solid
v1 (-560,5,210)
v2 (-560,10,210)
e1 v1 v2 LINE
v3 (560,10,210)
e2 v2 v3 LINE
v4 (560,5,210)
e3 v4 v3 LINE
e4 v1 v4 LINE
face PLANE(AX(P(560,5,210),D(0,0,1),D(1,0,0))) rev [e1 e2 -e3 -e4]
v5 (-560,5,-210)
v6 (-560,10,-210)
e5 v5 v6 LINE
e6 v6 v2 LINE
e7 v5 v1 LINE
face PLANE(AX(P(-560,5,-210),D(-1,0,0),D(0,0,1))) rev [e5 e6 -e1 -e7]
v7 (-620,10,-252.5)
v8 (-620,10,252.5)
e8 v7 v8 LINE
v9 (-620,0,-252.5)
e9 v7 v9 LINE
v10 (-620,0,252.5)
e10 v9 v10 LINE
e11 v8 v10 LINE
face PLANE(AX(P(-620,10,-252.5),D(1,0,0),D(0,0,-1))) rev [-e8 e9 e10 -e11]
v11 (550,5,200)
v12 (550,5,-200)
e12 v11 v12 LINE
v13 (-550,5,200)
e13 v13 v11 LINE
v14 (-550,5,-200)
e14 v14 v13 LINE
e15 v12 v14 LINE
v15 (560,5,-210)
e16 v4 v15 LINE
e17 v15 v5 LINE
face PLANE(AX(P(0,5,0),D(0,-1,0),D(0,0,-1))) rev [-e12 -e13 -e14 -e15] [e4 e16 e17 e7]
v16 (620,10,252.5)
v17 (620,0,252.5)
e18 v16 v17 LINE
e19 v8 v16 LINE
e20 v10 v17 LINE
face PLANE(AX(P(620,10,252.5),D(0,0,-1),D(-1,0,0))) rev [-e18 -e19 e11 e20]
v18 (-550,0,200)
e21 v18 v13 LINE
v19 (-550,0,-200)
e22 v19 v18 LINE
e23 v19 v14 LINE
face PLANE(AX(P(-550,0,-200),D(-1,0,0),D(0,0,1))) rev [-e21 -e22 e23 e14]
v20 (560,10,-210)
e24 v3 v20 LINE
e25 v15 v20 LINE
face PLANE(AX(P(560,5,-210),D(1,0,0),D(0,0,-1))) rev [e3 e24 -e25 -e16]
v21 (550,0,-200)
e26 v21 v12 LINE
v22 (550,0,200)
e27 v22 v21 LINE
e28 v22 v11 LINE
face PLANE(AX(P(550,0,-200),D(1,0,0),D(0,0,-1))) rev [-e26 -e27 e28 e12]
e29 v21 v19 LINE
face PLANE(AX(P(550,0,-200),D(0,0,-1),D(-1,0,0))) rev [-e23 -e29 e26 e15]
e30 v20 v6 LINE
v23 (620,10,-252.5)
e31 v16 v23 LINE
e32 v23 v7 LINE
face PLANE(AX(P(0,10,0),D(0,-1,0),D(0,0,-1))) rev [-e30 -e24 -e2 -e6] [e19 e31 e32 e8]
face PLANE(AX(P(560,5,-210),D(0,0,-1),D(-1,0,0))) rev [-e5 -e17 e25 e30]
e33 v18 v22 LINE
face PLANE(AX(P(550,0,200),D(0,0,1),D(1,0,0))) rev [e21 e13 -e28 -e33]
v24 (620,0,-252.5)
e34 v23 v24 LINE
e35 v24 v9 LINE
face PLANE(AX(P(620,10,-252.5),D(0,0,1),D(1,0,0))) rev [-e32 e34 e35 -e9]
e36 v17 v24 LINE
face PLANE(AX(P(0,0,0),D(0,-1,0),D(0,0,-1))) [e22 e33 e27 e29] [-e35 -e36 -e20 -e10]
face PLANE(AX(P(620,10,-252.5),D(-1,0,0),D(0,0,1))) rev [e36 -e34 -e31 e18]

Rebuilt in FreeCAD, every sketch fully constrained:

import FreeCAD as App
import Part
import Sketcher
from FreeCAD import Vector
Q = App.Units.Quantity

doc = App.newDocument("Part")
body = doc.addObject("PartDesign::Body", "Body")

# Sketch on XZ plane
sketch1 = body.newObject("Sketcher::SketchObject", "Sketch")
sketch1.AttachmentSupport = (doc.getObject("XZ_Plane"), [""])
sketch1.MapMode = "FlatFace"
sketch1.addGeometry([
    Part.LineSegment(Vector(-620, -252.5, 0), Vector(-620, 252.5, 0)),
    Part.LineSegment(Vector(-620, 252.5, 0), Vector(620, 252.5, 0)),
    Part.LineSegment(Vector(620, 252.5, 0), Vector(620, -252.5, 0)),
    Part.LineSegment(Vector(620, -252.5, 0), Vector(-620, -252.5, 0)),
], False)
sketch1.addConstraint([
    Sketcher.Constraint("Coincident", 0, 2, 1, 1),
    Sketcher.Constraint("Coincident", 1, 2, 2, 1),
    Sketcher.Constraint("Coincident", 2, 2, 3, 1),
    Sketcher.Constraint("Coincident", 3, 2, 0, 1),
    Sketcher.Constraint("Vertical", 0),
    Sketcher.Constraint("Horizontal", 1),
    Sketcher.Constraint("Vertical", 2),
    Sketcher.Constraint("Horizontal", 3),
    Sketcher.Constraint("Symmetric", 0, 2, 2, 2, -1, 1),
    Sketcher.Constraint("DistanceX", 1, 1, 1, 2, Q("1240 mm")),
    Sketcher.Constraint("DistanceY", 0, 1, 0, 2, Q("505 mm")),
])
pad1 = body.newObject("PartDesign::Pad", "Pad")
pad1.Profile = sketch1
pad1.Length = 10
pad1.Reversed = True

# Sketch on XZ plane
sketch2 = body.newObject("Sketcher::SketchObject", "Sketch001")
sketch2.AttachmentSupport = (doc.getObject("XZ_Plane"), [""])
sketch2.MapMode = "FlatFace"
sketch2.AttachmentOffset = App.Placement(Vector(0, 0, -10), App.Rotation())
sketch2.addGeometry([
    Part.LineSegment(Vector(-550, -200, 0), Vector(-550, 200, 0)),
    Part.LineSegment(Vector(-550, 200, 0), Vector(550, 200, 0)),
    Part.LineSegment(Vector(550, 200, 0), Vector(550, -200, 0)),
    Part.LineSegment(Vector(550, -200, 0), Vector(-550, -200, 0)),
], False)
sketch2.addConstraint([
    Sketcher.Constraint("Coincident", 0, 2, 1, 1),
    Sketcher.Constraint("Coincident", 1, 2, 2, 1),
    Sketcher.Constraint("Coincident", 2, 2, 3, 1),
    Sketcher.Constraint("Coincident", 3, 2, 0, 1),
    Sketcher.Constraint("Vertical", 0),
    Sketcher.Constraint("Horizontal", 1),
    Sketcher.Constraint("Vertical", 2),
    Sketcher.Constraint("Horizontal", 3),
    Sketcher.Constraint("Symmetric", 0, 2, 2, 2, -1, 1),
    Sketcher.Constraint("DistanceX", 1, 1, 1, 2, Q("1100 mm")),
    Sketcher.Constraint("DistanceY", 0, 1, 0, 2, Q("400 mm")),
])
pocket1 = body.newObject("PartDesign::Pocket", "Pocket")
pocket1.Profile = sketch2
pocket1.Type = "ThroughAll"
pocket1.Reversed = True

# Sketch on XZ plane
sketch3 = body.newObject("Sketcher::SketchObject", "Sketch002")
sketch3.AttachmentSupport = (doc.getObject("XZ_Plane"), [""])
sketch3.MapMode = "FlatFace"
sketch3.AttachmentOffset = App.Placement(Vector(0, 0, -10), App.Rotation())
sketch3.addGeometry([
    Part.LineSegment(Vector(-560, -210, 0), Vector(-560, 210, 0)),
    Part.LineSegment(Vector(-560, 210, 0), Vector(560, 210, 0)),
    Part.LineSegment(Vector(560, 210, 0), Vector(560, -210, 0)),
    Part.LineSegment(Vector(560, -210, 0), Vector(-560, -210, 0)),
], False)
sketch3.addConstraint([
    Sketcher.Constraint("Coincident", 0, 2, 1, 1),
    Sketcher.Constraint("Coincident", 1, 2, 2, 1),
    Sketcher.Constraint("Coincident", 2, 2, 3, 1),
    Sketcher.Constraint("Coincident", 3, 2, 0, 1),
    Sketcher.Constraint("Vertical", 0),
    Sketcher.Constraint("Horizontal", 1),
    Sketcher.Constraint("Vertical", 2),
    Sketcher.Constraint("Horizontal", 3),
    Sketcher.Constraint("Symmetric", 0, 2, 2, 2, -1, 1),
    Sketcher.Constraint("DistanceX", 1, 1, 1, 2, Q("1120 mm")),
    Sketcher.Constraint("DistanceY", 0, 1, 0, 2, Q("420 mm")),
])
pocket2 = body.newObject("PartDesign::Pocket", "Pocket001")
pocket2.Profile = sketch3
pocket2.Length = 5
pocket2.Reversed = True

doc.recompute()
